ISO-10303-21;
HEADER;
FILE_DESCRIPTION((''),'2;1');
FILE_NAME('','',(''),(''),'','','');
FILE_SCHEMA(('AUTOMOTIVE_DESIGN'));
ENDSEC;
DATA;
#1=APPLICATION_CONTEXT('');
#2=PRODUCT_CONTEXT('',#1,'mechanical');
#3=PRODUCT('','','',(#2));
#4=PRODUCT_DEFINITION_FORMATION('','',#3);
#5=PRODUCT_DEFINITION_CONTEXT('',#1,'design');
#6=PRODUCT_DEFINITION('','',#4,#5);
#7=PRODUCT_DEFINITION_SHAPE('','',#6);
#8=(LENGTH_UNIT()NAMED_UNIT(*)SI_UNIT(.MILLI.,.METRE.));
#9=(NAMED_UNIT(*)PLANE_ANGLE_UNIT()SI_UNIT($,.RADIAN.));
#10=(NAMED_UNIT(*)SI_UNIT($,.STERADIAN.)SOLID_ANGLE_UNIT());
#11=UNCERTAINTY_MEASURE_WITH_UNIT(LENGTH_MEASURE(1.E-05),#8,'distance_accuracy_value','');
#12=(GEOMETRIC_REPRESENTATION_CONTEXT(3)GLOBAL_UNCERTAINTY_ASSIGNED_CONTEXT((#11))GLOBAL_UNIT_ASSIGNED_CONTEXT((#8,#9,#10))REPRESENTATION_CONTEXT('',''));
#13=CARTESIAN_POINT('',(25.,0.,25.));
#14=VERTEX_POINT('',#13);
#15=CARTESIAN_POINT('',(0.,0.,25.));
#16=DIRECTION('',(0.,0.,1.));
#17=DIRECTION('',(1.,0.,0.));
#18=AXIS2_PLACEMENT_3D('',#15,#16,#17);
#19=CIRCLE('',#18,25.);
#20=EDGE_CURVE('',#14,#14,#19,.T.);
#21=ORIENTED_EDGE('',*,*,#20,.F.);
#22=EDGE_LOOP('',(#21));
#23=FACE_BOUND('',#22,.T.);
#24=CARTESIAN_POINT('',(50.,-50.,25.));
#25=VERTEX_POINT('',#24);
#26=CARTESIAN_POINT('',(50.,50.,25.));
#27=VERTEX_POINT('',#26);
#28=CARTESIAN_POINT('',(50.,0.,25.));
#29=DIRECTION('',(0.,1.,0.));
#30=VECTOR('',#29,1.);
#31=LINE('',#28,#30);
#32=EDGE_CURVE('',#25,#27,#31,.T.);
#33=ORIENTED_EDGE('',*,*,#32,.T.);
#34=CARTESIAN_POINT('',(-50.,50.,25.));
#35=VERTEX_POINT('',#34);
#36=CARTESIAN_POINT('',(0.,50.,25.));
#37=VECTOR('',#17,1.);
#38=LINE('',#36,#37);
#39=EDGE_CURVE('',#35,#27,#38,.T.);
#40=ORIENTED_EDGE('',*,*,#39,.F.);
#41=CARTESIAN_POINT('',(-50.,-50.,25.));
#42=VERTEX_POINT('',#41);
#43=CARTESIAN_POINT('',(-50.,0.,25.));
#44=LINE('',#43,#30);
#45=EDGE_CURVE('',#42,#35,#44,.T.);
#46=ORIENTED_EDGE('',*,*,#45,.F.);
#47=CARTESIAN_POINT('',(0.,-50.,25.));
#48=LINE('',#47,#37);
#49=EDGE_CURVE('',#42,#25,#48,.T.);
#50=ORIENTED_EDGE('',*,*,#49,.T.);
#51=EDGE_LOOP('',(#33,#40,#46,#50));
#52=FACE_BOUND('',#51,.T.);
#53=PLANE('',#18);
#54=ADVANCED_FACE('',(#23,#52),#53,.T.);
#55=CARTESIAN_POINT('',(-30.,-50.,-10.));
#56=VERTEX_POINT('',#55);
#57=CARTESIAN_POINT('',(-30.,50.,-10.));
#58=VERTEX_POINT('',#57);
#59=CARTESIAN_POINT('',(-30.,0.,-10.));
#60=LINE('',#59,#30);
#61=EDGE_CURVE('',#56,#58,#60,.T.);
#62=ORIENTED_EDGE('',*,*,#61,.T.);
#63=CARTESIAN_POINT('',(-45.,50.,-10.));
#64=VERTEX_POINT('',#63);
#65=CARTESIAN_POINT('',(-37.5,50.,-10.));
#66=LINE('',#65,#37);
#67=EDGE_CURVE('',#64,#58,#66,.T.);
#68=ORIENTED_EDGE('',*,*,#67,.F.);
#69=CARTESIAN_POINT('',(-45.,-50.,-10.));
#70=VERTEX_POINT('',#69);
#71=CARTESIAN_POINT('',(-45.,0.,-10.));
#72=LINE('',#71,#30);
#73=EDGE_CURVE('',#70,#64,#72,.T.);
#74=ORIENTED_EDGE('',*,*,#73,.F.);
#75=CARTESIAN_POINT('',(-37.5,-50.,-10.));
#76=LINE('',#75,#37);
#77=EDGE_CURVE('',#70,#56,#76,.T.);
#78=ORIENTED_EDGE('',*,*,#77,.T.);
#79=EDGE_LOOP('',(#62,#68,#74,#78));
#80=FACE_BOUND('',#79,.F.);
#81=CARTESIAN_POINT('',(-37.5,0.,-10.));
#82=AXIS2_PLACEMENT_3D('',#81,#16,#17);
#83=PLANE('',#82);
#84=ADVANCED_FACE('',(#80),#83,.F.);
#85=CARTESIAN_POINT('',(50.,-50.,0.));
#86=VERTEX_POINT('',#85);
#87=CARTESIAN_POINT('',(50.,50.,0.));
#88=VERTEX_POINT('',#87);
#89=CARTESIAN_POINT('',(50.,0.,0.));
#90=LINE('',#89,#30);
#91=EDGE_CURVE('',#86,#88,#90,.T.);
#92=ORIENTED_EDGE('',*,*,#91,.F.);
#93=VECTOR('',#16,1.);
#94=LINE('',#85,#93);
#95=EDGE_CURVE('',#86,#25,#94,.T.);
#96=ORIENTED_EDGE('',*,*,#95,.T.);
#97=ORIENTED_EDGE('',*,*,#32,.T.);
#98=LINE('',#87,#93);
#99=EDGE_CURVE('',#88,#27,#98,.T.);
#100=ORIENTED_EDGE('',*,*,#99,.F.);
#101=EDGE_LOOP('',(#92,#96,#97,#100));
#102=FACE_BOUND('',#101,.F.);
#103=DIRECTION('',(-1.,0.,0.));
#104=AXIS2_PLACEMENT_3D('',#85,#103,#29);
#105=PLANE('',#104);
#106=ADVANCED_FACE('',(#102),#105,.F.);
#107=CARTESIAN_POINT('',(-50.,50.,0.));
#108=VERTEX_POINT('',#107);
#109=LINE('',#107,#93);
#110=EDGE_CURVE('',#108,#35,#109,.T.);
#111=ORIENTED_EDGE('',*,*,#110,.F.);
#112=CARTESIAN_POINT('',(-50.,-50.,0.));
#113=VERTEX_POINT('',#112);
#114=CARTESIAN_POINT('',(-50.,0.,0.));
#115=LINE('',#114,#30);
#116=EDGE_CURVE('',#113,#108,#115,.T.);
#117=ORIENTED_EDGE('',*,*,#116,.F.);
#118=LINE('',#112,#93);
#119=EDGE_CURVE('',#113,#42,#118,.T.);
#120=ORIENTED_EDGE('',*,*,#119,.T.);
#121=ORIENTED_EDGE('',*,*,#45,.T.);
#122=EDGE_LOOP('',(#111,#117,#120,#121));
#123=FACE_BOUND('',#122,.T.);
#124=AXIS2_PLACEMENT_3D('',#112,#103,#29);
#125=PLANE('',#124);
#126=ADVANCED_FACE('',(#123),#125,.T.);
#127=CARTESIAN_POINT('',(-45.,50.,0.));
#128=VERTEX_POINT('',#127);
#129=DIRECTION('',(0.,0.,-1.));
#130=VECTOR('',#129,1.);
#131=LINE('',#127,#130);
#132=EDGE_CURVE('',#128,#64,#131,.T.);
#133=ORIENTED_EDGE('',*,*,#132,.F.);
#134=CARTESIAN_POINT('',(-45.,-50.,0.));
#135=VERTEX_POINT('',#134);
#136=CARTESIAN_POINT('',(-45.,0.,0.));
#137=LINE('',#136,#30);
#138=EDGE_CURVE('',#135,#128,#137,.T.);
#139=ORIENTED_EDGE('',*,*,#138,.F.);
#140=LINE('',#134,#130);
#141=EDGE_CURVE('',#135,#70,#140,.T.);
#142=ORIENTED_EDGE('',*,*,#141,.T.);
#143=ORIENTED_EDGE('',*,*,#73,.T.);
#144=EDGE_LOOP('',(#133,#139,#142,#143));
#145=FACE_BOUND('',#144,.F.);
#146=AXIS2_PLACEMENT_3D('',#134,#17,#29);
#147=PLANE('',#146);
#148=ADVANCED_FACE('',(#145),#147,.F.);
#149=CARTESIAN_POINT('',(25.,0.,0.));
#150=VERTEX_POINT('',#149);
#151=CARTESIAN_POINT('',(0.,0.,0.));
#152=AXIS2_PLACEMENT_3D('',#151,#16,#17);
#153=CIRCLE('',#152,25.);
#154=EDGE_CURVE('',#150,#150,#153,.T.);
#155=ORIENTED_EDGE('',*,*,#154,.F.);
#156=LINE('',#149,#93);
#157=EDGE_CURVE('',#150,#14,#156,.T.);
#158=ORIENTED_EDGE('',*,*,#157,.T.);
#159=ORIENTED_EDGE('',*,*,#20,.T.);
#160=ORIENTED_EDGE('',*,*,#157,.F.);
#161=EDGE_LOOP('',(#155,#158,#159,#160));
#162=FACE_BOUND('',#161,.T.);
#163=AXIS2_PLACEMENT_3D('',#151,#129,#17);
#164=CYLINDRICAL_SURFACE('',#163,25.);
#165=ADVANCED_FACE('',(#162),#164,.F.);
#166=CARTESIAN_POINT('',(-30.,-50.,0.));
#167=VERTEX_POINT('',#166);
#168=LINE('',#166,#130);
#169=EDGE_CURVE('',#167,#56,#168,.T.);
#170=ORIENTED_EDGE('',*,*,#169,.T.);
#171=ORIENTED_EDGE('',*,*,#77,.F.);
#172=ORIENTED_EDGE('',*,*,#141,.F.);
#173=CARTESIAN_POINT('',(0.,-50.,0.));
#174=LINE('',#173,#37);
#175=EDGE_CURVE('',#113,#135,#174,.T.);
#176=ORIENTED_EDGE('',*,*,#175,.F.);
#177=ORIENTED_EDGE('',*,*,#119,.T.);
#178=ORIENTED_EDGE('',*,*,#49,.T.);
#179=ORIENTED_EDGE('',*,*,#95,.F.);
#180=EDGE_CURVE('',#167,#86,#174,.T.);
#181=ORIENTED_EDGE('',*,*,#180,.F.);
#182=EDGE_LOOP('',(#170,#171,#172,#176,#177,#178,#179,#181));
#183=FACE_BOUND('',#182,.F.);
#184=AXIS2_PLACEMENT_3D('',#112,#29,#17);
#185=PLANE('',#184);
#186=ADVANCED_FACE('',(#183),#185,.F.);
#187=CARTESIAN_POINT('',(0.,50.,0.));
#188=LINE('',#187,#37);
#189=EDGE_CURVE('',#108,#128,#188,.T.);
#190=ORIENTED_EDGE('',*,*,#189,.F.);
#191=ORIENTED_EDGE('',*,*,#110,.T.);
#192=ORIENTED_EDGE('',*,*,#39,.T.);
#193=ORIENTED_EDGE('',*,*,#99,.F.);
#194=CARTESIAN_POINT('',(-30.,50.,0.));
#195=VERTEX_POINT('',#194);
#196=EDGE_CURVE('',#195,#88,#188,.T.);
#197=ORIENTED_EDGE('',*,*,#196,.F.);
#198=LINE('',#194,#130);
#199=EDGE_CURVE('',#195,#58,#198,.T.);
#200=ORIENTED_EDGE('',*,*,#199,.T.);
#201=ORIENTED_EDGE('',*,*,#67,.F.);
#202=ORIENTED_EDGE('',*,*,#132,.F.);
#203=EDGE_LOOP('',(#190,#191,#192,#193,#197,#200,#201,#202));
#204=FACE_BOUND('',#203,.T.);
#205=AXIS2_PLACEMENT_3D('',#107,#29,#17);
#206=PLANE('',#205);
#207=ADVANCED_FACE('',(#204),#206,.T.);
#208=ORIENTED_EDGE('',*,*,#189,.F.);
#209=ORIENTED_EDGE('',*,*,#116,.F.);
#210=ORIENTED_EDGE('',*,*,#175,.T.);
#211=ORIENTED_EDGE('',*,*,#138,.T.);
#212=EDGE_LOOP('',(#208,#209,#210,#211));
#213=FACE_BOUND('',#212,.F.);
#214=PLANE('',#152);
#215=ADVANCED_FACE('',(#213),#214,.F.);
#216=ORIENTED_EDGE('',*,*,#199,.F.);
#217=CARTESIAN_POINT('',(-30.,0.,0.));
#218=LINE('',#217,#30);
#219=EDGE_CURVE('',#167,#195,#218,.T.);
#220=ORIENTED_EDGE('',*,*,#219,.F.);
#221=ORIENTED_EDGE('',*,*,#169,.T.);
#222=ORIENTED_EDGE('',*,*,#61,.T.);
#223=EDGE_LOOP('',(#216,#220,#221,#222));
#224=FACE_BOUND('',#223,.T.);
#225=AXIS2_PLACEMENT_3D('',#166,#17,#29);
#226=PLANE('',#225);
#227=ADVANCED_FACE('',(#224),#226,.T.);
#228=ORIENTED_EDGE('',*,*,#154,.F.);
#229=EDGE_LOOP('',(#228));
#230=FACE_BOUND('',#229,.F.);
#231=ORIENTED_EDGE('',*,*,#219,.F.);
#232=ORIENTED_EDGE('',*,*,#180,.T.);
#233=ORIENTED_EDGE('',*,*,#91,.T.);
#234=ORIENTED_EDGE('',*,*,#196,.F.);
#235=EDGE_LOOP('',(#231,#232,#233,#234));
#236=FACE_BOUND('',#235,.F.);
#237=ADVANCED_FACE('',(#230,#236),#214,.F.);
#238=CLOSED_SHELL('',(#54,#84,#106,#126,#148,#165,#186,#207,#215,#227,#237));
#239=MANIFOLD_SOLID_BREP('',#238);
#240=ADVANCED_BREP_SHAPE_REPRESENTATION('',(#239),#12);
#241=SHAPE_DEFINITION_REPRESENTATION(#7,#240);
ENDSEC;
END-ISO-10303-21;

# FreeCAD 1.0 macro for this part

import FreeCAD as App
import Part
import Sketcher
Q = App.Units.Quantity

doc = App.newDocument("Part")
body = doc.addObject("PartDesign::Body", "Body")

# Sketch on XY plane
sketch1 = doc.addObject("Sketcher::SketchObject", "Sketch")
body.addObject(sketch1)
sketch1.AttachmentSupport = (doc.XY_Plane, [""])
sketch1.MapMode = "FlatFace"
sketch1.addGeometry(Part.LineSegment(App.Vector(-50, 50, 0), App.Vector(-50, -50, 0)), False)
sketch1.addGeometry(Part.LineSegment(App.Vector(-50, -50, 0), App.Vector(50, -50, 0)), False)
sketch1.addGeometry(Part.LineSegment(App.Vector(50, -50, 0), App.Vector(50, 50, 0)), False)
sketch1.addGeometry(Part.LineSegment(App.Vector(50, 50, 0), App.Vector(-50, 50, 0)), False)
sketch1.addGeometry(Part.Circle(App.Vector(0, 0, 0), App.Vector(0, 0, 1), 25), False)
sketch1.addConstraint(Sketcher.Constraint("Coincident", 0, 2, 1, 1))
sketch1.addConstraint(Sketcher.Constraint("Coincident", 1, 2, 2, 1))
sketch1.addConstraint(Sketcher.Constraint("Coincident", 2, 2, 3, 1))
sketch1.addConstraint(Sketcher.Constraint("Coincident", 3, 2, 0, 1))
sketch1.addConstraint(Sketcher.Constraint("Vertical", 0))
sketch1.addConstraint(Sketcher.Constraint("Horizontal", 1))
sketch1.addConstraint(Sketcher.Constraint("Vertical", 2))
sketch1.addConstraint(Sketcher.Constraint("Horizontal", 3))
sketch1.addConstraint(Sketcher.Constraint("Coincident", 4, 3, -1, 1))
sketch1.addConstraint(Sketcher.Constraint("Symmetric", 0, 2, 2, 2, -1, 1))
sketch1.addConstraint(Sketcher.Constraint("Equal", 3, 0))
sketch1.addConstraint(Sketcher.Constraint("Diameter", 4, Q("50 mm")))
sketch1.addConstraint(Sketcher.Constraint("DistanceX", 1, 1, 1, 2, Q("100 mm")))
pad1 = doc.addObject("PartDesign::Pad", "Pad")
body.addObject(pad1)
pad1.Profile = sketch1
pad1.Length = 25

# Sketch on XY plane
sketch2 = doc.addObject("Sketcher::SketchObject", "Sketch001")
body.addObject(sketch2)
sketch2.AttachmentSupport = (doc.XY_Plane, [""])
sketch2.MapMode = "FlatFace"
sketch2.addGeometry(Part.LineSegment(App.Vector(-45, 50, 0), App.Vector(-45, -50, 0)), False)
sketch2.addGeometry(Part.LineSegment(App.Vector(-45, -50, 0), App.Vector(-30, -50, 0)), False)
sketch2.addGeometry(Part.LineSegment(App.Vector(-30, -50, 0), App.Vector(-30, 50, 0)), False)
sketch2.addGeometry(Part.LineSegment(App.Vector(-30, 50, 0), App.Vector(-45, 50, 0)), False)
sketch2.addConstraint(Sketcher.Constraint("Coincident", 0, 2, 1, 1))
sketch2.addConstraint(Sketcher.Constraint("Coincident", 1, 2, 2, 1))
sketch2.addConstraint(Sketcher.Constraint("Coincident", 2, 2, 3, 1))
sketch2.addConstraint(Sketcher.Constraint("Coincident", 3, 2, 0, 1))
sketch2.addConstraint(Sketcher.Constraint("Vertical", 0))
sketch2.addConstraint(Sketcher.Constraint("Horizontal", 1))
sketch2.addConstraint(Sketcher.Constraint("Vertical", 2))
sketch2.addConstraint(Sketcher.Constraint("Horizontal", 3))
sketch2.addConstraint(Sketcher.Constraint("DistanceX", 1, 1, 1, 2, Q("15 mm")))
sketch2.addConstraint(Sketcher.Constraint("DistanceY", 0, 2, 0, 1, Q("100 mm")))
sketch2.addConstraint(Sketcher.Constraint("DistanceX", 0, 2, -1, 1, Q("45 mm")))
sketch2.addConstraint(Sketcher.Constraint("DistanceY", 0, 2, -1, 1, Q("50 mm")))
pad2 = doc.addObject("PartDesign::Pad", "Pad001")
body.addObject(pad2)
pad2.Profile = sketch2
pad2.Length = 10
pad2.Reversed = True

doc.recompute()
